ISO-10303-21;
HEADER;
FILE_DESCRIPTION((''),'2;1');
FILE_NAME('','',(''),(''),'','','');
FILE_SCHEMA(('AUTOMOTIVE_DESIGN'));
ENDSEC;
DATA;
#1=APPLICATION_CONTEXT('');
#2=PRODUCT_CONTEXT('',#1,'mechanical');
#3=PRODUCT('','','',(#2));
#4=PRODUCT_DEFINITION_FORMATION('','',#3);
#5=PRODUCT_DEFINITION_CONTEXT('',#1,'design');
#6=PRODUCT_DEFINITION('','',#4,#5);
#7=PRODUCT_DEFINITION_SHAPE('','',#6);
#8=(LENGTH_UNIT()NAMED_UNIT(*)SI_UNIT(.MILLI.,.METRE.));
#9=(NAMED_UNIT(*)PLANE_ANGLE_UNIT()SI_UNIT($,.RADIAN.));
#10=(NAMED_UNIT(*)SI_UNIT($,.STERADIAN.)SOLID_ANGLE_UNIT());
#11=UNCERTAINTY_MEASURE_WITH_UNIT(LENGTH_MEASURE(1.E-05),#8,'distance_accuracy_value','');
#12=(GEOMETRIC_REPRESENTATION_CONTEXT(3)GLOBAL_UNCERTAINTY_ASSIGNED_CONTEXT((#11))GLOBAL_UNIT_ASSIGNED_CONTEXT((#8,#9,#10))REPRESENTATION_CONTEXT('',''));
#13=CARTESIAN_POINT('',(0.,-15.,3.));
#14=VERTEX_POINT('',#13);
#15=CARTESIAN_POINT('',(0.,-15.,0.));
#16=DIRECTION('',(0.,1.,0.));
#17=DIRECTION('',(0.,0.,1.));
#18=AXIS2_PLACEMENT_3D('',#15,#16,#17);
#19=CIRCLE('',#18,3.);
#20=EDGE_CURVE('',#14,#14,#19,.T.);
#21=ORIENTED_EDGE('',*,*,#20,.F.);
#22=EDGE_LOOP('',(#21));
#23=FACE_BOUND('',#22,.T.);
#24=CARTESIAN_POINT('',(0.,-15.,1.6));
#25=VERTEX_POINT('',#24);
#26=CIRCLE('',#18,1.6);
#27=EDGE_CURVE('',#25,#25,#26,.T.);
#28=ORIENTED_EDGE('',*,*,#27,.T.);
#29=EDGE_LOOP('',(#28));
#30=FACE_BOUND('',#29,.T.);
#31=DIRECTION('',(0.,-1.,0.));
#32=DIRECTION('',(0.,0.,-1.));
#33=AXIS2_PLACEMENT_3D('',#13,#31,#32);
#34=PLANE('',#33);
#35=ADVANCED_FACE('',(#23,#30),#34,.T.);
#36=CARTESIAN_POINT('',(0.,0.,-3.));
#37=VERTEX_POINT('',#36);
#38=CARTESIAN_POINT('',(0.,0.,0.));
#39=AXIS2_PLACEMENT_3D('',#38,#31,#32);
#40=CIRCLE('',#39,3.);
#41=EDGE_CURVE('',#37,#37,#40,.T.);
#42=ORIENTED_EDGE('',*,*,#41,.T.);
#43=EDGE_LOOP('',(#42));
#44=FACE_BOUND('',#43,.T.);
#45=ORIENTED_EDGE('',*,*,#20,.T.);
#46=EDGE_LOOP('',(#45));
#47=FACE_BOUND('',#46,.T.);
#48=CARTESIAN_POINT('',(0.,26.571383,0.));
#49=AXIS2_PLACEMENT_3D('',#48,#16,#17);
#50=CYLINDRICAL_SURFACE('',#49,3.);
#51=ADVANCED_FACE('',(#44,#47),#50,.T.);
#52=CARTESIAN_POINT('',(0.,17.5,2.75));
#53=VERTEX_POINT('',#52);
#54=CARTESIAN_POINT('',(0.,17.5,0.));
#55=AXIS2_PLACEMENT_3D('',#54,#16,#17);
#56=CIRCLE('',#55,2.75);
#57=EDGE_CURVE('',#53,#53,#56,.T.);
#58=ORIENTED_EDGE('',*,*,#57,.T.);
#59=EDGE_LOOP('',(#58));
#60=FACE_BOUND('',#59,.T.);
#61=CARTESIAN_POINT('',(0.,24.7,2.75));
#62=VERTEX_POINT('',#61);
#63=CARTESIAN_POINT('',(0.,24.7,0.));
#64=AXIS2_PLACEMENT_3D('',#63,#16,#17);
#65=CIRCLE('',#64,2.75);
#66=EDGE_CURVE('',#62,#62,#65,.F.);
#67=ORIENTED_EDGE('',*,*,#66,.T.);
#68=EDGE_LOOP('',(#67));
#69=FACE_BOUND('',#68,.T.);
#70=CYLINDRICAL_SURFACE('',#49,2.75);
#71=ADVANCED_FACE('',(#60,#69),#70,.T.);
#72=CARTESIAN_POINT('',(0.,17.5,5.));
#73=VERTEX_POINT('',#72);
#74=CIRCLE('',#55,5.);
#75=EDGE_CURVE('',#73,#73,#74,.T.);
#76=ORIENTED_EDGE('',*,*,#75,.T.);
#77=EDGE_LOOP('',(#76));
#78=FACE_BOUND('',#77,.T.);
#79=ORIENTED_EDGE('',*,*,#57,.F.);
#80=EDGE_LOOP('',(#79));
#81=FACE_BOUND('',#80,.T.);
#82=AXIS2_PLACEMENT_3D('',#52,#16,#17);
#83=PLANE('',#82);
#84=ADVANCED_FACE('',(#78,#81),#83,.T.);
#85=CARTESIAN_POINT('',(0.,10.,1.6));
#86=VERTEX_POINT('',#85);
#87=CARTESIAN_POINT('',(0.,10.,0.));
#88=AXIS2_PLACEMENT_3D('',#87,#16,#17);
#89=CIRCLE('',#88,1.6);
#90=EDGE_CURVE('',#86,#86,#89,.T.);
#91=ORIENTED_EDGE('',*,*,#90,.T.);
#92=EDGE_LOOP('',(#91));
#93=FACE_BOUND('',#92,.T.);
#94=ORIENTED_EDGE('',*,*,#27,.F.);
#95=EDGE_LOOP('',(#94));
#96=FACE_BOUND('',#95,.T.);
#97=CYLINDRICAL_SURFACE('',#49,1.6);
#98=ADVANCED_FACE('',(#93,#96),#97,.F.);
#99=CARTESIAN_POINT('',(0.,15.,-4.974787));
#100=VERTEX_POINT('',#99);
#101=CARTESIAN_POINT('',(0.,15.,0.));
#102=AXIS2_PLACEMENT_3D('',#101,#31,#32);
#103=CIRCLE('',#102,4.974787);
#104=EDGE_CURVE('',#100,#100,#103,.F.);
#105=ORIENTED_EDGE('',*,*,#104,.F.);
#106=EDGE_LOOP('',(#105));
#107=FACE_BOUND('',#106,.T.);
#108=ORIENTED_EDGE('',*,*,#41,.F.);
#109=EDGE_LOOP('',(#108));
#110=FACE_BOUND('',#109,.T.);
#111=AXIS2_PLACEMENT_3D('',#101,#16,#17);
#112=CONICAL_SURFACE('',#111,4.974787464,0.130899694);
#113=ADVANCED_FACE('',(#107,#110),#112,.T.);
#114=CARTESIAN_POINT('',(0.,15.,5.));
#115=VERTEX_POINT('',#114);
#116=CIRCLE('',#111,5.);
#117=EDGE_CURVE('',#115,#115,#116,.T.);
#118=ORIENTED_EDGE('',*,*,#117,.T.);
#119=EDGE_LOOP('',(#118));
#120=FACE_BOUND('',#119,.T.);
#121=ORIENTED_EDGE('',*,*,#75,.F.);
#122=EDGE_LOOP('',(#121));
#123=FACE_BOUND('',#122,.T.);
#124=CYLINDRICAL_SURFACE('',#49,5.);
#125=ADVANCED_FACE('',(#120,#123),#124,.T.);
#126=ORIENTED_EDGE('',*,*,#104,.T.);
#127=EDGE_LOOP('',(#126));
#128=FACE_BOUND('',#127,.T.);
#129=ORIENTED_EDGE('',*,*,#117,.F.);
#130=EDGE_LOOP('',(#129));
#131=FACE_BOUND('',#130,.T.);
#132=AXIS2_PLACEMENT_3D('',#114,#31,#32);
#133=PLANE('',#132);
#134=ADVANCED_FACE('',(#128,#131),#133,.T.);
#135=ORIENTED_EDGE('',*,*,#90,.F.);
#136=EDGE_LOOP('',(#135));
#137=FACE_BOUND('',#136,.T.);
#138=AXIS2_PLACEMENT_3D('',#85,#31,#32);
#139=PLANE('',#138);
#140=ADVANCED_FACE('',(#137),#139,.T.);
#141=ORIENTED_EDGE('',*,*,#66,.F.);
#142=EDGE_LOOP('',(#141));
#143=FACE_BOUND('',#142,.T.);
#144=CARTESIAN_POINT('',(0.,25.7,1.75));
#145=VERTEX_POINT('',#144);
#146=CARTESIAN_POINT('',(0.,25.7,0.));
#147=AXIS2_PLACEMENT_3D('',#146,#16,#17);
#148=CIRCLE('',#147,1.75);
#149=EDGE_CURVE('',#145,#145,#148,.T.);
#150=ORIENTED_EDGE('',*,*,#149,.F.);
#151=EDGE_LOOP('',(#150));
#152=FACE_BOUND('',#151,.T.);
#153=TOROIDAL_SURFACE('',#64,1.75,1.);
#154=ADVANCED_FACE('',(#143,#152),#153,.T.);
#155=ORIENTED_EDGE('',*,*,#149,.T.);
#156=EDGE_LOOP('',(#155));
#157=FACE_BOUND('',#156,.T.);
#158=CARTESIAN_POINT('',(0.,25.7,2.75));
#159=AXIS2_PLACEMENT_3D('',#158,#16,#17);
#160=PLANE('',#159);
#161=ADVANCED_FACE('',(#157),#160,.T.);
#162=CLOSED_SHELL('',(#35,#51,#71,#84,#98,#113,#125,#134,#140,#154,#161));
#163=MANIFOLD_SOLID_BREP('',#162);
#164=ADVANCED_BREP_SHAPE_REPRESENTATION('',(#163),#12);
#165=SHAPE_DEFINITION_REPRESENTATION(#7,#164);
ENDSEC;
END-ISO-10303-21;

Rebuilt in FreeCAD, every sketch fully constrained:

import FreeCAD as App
import Part
import Sketcher

V = App.Vector
Q = App.Units.Quantity


def edges_at(feature, points):
    """Names of the edges that pass closest to the given points."""
    edges = feature.Shape.Edges
    near = lambda p: min(range(len(edges)), key=lambda i: edges[i].distToShape(Part.Vertex(*p))[0])
    return sorted({f"Edge{near(p) + 1}" for p in points})


def add_polygon(sketch, points):
    """Adds a closed chain of lines whose ends are joined by coincident constraints."""
    first, n = sketch.GeometryCount, len(points)
    for a, b in zip(points, points[1:] + points[:1]):
        sketch.addGeometry(Part.LineSegment(App.Vector(*a, 0), App.Vector(*b, 0)), False)
    for i in range(n):
        sketch.addConstraint(Sketcher.Constraint("Coincident", first + i, 2, first + (i + 1) % n, 1))

doc = App.newDocument("Part")
body = doc.addObject("PartDesign::Body", "Body")

sketch1 = doc.addObject("Sketcher::SketchObject", "Sketch")
body.addObject(sketch1)
sketch1.AttachmentSupport = (doc.YZ_Plane, [""])
sketch1.MapMode = "FlatFace"
add_polygon(sketch1, [(25.7, 2.8), (17.5, 2.8), (17.5, 5), (15, 5), (15, 3), (-15, 3), (-15, 1.6), (10, 1.6), (10, 0), (25.7, 0)])
sketch1.addConstraint([
    Sketcher.Constraint("Horizontal", 0),
    Sketcher.Constraint("Vertical", 1),
    Sketcher.Constraint("Horizontal", 2),
    Sketcher.Constraint("Vertical", 3),
    Sketcher.Constraint("Horizontal", 4),
    Sketcher.Constraint("Vertical", 5),
    Sketcher.Constraint("Horizontal", 6),
    Sketcher.Constraint("Vertical", 7),
    Sketcher.Constraint("Horizontal", 8),
    Sketcher.Constraint("Vertical", 9),
    Sketcher.Constraint("PointOnObject", 7, 2, -1),
    Sketcher.Constraint("DistanceX", 4, 2, 4, 1, Q("30 mm")),
    Sketcher.Constraint("DistanceX", 6, 1, 6, 2, Q("25 mm")),
    Sketcher.Constraint("DistanceY", 3, 2, 3, 1, Q("2 mm")),
    Sketcher.Constraint("DistanceX", 0, 2, 0, 1, Q("8.2 mm")),
    Sketcher.Constraint("DistanceX", 2, 2, 2, 1, Q("2.5 mm")),
    Sketcher.Constraint("DistanceY", 5, 2, 5, 1, Q("1.4 mm")),
    Sketcher.Constraint("DistanceY", 7, 2, 7, 1, Q("1.6 mm")),
    Sketcher.Constraint("DistanceX", -1, 1, 2, 2, Q("15 mm")),
    Sketcher.Constraint("DistanceY", 1, 1, 1, 2, Q("2.25 mm")),
])
revolution = doc.addObject("PartDesign::Revolution", "Revolution")
body.addObject(revolution)
revolution.Profile = sketch1
revolution.ReferenceAxis = (sketch1, ["H_Axis"])
revolution.Angle = 360
doc.recompute()

fillet = doc.addObject("PartDesign::Fillet", "Fillet")
body.addObject(fillet)
fillet.Base = (revolution, edges_at(revolution, [(0, 25.7, -2.75)]))
fillet.Radius = 1
doc.recompute()

chamfer = doc.addObject("PartDesign::Chamfer", "Chamfer")
body.addObject(chamfer)
chamfer.Base = (fillet, edges_at(fillet, [(0, 15, -3)]))
chamfer.ChamferType = "Two distances"
chamfer.Size = 15
chamfer.Size2 = 1.974787
chamfer.FlipDirection = True

doc.recompute()
